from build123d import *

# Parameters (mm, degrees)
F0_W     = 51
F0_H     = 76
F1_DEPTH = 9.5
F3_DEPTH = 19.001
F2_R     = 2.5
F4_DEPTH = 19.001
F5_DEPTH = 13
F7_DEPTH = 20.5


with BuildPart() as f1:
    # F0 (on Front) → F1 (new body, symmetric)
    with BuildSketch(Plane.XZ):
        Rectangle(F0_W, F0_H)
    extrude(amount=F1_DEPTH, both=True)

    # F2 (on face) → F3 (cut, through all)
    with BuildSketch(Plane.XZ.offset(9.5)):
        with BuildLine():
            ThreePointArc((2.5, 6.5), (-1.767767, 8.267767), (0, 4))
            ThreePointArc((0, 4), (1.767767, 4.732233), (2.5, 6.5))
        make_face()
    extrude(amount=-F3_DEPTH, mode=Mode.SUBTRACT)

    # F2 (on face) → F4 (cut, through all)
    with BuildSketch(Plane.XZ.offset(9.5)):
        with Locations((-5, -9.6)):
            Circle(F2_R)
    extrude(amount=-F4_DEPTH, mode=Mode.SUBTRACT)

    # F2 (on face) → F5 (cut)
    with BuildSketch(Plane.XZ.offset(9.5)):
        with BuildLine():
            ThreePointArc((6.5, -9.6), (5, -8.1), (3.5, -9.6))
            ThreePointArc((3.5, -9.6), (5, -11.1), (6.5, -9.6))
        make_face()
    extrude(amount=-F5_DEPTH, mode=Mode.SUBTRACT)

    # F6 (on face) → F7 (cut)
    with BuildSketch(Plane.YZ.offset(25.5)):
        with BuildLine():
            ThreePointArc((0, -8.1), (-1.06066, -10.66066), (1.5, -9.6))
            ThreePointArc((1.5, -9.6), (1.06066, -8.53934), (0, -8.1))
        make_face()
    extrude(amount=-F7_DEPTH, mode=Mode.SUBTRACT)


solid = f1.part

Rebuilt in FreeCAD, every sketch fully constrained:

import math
import FreeCAD as App
import Part
import Sketcher


def add_polygon(sketch, points):
    """Adds a closed chain of lines whose ends are joined by coincident constraints."""
    first, n = sketch.GeometryCount, len(points)
    for a, b in zip(points, points[1:] + points[:1]):
        sketch.addGeometry(Part.LineSegment(App.Vector(*a, 0), App.Vector(*b, 0)), False)
    for i in range(n):
        sketch.addConstraint(Sketcher.Constraint("Coincident", first + i, 2, first + (i + 1) % n, 1))

doc = App.newDocument("Part")
body = doc.addObject("PartDesign::Body", "Body")

# Sketch on XZ plane
sketch1 = doc.addObject("Sketcher::SketchObject", "Sketch")
body.addObject(sketch1)
sketch1.AttachmentSupport = (doc.XZ_Plane, [""])
sketch1.MapMode = "FlatFace"
add_polygon(sketch1, [(-25.5, 38), (-25.5, -38), (25.5, -38), (25.5, 38)])  # lines 0-3
sketch1.addConstraint([
    Sketcher.Constraint("Vertical", 0),
    Sketcher.Constraint("Horizontal", 1),
    Sketcher.Constraint("Vertical", 2),
    Sketcher.Constraint("Horizontal", 3),
    Sketcher.Constraint("Symmetric", 0, 2, 2, 2, -1, 1),
    Sketcher.Constraint("DistanceX", 1, 1, 1, 2, 51.0),
    Sketcher.Constraint("DistanceY", 0, 2, 0, 1, 76.0),
])
pad1 = doc.addObject("PartDesign::Pad", "Pad")
body.addObject(pad1)
pad1.Profile = sketch1
pad1.Length = 19
pad1.Midplane = True

# Sketch on XZ plane
sketch2 = doc.addObject("Sketcher::SketchObject", "Sketch001")
body.addObject(sketch2)
sketch2.AttachmentSupport = (doc.XZ_Plane, [""])
sketch2.MapMode = "FlatFace"
sketch2.AttachmentOffset = App.Placement(App.Vector(0, 0, 9.5), App.Rotation())
sketch2.addGeometry([
    Part.ArcOfCircle(Part.Circle(App.Vector(0, 6.5, 0), App.Vector(0, 0, 1), 2.5), math.radians(-0.000001), math.radians(270.000001)),
    Part.ArcOfCircle(Part.Circle(App.Vector(0, 6.5, 0), App.Vector(0, 0, 1), 2.5), math.radians(-90.000004), math.radians(0.000004)),
], False)
sketch2.addConstraint([
    Sketcher.Constraint("Tangent", 0, 1, 1, 2),
    Sketcher.Constraint("Coincident", 1, 1, 0, 2),
    Sketcher.Constraint("PointOnObject", 0, 3, -2),
    Sketcher.Constraint("PointOnObject", 1, 1, -2),
    Sketcher.Constraint("Horizontal", 1, 3, 0, 1),
    Sketcher.Constraint("Radius", 0, 2.5),
    Sketcher.Constraint("DistanceY", -1, 1, 1, 1, 4.0),
])
pocket1 = doc.addObject("PartDesign::Pocket", "Pocket")
body.addObject(pocket1)
pocket1.Profile = sketch2
pocket1.Type = "ThroughAll"

# Sketch on XZ plane
sketch3 = doc.addObject("Sketcher::SketchObject", "Sketch002")
body.addObject(sketch3)
sketch3.AttachmentSupport = (doc.XZ_Plane, [""])
sketch3.MapMode = "FlatFace"
sketch3.AttachmentOffset = App.Placement(App.Vector(0, 0, 9.5), App.Rotation())
sketch3.addGeometry(Part.Circle(App.Vector(-5, -9.6, 0), App.Vector(0, 0, 1), 2.5), False)
sketch3.addConstraint([
    Sketcher.Constraint("Diameter", 0, 5.0),
    Sketcher.Constraint("DistanceX", 0, 3, -1, 1, 5.0),
    Sketcher.Constraint("DistanceY", 0, 3, -1, 1, 9.6),
])
pocket2 = doc.addObject("PartDesign::Pocket", "Pocket001")
body.addObject(pocket2)
pocket2.Profile = sketch3
pocket2.Type = "ThroughAll"

# Sketch on XZ plane
sketch4 = doc.addObject("Sketcher::SketchObject", "Sketch003")
body.addObject(sketch4)
sketch4.AttachmentSupport = (doc.XZ_Plane, [""])
sketch4.MapMode = "FlatFace"
sketch4.AttachmentOffset = App.Placement(App.Vector(0, 0, 9.5), App.Rotation())
sketch4.addGeometry(Part.Circle(App.Vector(5, -9.6, 0), App.Vector(0, 0, 1), 1.5), False)
sketch4.addConstraint([
    Sketcher.Constraint("Diameter", 0, 3.0),
    Sketcher.Constraint("DistanceX", -1, 1, 0, 3, 5.0),
    Sketcher.Constraint("DistanceY", 0, 3, -1, 1, 9.6),
])
pocket3 = doc.addObject("PartDesign::Pocket", "Pocket002")
body.addObject(pocket3)
pocket3.Profile = sketch4
pocket3.Length = 13

# Sketch on YZ plane
sketch5 = doc.addObject("Sketcher::SketchObject", "Sketch004")
body.addObject(sketch5)
sketch5.AttachmentSupport = (doc.YZ_Plane, [""])
sketch5.MapMode = "FlatFace"
sketch5.AttachmentOffset = App.Placement(App.Vector(0, 0, 25.5), App.Rotation())
sketch5.addGeometry([
    Part.ArcOfCircle(Part.Circle(App.Vector(0, -9.6, 0), App.Vector(0, 0, 1), 1.5), math.radians(90.000004), math.radians(359.999996)),
    Part.ArcOfCircle(Part.Circle(App.Vector(-0.000001, -9.600001, 0), App.Vector(0, 0, 1), 1.500001), math.radians(0.000022), math.radians(89.999978)),
], False)
sketch5.addConstraint([
    Sketcher.Constraint("Tangent", 0, 1, 1, 2),
    Sketcher.Constraint("Coincident", 1, 1, 0, 2),
    Sketcher.Constraint("PointOnObject", 0, 3, -2),
    Sketcher.Constraint("PointOnObject", 0, 1, -2),
    Sketcher.Constraint("Horizontal", 0, 3, 1, 1),
    Sketcher.Constraint("Radius", 0, 1.5),
    Sketcher.Constraint("DistanceY", 0, 3, -1, 1, 9.6),
])
pocket4 = doc.addObject("PartDesign::Pocket", "Pocket003")
body.addObject(pocket4)
pocket4.Profile = sketch5
pocket4.Length = 20.5

doc.recompute()
